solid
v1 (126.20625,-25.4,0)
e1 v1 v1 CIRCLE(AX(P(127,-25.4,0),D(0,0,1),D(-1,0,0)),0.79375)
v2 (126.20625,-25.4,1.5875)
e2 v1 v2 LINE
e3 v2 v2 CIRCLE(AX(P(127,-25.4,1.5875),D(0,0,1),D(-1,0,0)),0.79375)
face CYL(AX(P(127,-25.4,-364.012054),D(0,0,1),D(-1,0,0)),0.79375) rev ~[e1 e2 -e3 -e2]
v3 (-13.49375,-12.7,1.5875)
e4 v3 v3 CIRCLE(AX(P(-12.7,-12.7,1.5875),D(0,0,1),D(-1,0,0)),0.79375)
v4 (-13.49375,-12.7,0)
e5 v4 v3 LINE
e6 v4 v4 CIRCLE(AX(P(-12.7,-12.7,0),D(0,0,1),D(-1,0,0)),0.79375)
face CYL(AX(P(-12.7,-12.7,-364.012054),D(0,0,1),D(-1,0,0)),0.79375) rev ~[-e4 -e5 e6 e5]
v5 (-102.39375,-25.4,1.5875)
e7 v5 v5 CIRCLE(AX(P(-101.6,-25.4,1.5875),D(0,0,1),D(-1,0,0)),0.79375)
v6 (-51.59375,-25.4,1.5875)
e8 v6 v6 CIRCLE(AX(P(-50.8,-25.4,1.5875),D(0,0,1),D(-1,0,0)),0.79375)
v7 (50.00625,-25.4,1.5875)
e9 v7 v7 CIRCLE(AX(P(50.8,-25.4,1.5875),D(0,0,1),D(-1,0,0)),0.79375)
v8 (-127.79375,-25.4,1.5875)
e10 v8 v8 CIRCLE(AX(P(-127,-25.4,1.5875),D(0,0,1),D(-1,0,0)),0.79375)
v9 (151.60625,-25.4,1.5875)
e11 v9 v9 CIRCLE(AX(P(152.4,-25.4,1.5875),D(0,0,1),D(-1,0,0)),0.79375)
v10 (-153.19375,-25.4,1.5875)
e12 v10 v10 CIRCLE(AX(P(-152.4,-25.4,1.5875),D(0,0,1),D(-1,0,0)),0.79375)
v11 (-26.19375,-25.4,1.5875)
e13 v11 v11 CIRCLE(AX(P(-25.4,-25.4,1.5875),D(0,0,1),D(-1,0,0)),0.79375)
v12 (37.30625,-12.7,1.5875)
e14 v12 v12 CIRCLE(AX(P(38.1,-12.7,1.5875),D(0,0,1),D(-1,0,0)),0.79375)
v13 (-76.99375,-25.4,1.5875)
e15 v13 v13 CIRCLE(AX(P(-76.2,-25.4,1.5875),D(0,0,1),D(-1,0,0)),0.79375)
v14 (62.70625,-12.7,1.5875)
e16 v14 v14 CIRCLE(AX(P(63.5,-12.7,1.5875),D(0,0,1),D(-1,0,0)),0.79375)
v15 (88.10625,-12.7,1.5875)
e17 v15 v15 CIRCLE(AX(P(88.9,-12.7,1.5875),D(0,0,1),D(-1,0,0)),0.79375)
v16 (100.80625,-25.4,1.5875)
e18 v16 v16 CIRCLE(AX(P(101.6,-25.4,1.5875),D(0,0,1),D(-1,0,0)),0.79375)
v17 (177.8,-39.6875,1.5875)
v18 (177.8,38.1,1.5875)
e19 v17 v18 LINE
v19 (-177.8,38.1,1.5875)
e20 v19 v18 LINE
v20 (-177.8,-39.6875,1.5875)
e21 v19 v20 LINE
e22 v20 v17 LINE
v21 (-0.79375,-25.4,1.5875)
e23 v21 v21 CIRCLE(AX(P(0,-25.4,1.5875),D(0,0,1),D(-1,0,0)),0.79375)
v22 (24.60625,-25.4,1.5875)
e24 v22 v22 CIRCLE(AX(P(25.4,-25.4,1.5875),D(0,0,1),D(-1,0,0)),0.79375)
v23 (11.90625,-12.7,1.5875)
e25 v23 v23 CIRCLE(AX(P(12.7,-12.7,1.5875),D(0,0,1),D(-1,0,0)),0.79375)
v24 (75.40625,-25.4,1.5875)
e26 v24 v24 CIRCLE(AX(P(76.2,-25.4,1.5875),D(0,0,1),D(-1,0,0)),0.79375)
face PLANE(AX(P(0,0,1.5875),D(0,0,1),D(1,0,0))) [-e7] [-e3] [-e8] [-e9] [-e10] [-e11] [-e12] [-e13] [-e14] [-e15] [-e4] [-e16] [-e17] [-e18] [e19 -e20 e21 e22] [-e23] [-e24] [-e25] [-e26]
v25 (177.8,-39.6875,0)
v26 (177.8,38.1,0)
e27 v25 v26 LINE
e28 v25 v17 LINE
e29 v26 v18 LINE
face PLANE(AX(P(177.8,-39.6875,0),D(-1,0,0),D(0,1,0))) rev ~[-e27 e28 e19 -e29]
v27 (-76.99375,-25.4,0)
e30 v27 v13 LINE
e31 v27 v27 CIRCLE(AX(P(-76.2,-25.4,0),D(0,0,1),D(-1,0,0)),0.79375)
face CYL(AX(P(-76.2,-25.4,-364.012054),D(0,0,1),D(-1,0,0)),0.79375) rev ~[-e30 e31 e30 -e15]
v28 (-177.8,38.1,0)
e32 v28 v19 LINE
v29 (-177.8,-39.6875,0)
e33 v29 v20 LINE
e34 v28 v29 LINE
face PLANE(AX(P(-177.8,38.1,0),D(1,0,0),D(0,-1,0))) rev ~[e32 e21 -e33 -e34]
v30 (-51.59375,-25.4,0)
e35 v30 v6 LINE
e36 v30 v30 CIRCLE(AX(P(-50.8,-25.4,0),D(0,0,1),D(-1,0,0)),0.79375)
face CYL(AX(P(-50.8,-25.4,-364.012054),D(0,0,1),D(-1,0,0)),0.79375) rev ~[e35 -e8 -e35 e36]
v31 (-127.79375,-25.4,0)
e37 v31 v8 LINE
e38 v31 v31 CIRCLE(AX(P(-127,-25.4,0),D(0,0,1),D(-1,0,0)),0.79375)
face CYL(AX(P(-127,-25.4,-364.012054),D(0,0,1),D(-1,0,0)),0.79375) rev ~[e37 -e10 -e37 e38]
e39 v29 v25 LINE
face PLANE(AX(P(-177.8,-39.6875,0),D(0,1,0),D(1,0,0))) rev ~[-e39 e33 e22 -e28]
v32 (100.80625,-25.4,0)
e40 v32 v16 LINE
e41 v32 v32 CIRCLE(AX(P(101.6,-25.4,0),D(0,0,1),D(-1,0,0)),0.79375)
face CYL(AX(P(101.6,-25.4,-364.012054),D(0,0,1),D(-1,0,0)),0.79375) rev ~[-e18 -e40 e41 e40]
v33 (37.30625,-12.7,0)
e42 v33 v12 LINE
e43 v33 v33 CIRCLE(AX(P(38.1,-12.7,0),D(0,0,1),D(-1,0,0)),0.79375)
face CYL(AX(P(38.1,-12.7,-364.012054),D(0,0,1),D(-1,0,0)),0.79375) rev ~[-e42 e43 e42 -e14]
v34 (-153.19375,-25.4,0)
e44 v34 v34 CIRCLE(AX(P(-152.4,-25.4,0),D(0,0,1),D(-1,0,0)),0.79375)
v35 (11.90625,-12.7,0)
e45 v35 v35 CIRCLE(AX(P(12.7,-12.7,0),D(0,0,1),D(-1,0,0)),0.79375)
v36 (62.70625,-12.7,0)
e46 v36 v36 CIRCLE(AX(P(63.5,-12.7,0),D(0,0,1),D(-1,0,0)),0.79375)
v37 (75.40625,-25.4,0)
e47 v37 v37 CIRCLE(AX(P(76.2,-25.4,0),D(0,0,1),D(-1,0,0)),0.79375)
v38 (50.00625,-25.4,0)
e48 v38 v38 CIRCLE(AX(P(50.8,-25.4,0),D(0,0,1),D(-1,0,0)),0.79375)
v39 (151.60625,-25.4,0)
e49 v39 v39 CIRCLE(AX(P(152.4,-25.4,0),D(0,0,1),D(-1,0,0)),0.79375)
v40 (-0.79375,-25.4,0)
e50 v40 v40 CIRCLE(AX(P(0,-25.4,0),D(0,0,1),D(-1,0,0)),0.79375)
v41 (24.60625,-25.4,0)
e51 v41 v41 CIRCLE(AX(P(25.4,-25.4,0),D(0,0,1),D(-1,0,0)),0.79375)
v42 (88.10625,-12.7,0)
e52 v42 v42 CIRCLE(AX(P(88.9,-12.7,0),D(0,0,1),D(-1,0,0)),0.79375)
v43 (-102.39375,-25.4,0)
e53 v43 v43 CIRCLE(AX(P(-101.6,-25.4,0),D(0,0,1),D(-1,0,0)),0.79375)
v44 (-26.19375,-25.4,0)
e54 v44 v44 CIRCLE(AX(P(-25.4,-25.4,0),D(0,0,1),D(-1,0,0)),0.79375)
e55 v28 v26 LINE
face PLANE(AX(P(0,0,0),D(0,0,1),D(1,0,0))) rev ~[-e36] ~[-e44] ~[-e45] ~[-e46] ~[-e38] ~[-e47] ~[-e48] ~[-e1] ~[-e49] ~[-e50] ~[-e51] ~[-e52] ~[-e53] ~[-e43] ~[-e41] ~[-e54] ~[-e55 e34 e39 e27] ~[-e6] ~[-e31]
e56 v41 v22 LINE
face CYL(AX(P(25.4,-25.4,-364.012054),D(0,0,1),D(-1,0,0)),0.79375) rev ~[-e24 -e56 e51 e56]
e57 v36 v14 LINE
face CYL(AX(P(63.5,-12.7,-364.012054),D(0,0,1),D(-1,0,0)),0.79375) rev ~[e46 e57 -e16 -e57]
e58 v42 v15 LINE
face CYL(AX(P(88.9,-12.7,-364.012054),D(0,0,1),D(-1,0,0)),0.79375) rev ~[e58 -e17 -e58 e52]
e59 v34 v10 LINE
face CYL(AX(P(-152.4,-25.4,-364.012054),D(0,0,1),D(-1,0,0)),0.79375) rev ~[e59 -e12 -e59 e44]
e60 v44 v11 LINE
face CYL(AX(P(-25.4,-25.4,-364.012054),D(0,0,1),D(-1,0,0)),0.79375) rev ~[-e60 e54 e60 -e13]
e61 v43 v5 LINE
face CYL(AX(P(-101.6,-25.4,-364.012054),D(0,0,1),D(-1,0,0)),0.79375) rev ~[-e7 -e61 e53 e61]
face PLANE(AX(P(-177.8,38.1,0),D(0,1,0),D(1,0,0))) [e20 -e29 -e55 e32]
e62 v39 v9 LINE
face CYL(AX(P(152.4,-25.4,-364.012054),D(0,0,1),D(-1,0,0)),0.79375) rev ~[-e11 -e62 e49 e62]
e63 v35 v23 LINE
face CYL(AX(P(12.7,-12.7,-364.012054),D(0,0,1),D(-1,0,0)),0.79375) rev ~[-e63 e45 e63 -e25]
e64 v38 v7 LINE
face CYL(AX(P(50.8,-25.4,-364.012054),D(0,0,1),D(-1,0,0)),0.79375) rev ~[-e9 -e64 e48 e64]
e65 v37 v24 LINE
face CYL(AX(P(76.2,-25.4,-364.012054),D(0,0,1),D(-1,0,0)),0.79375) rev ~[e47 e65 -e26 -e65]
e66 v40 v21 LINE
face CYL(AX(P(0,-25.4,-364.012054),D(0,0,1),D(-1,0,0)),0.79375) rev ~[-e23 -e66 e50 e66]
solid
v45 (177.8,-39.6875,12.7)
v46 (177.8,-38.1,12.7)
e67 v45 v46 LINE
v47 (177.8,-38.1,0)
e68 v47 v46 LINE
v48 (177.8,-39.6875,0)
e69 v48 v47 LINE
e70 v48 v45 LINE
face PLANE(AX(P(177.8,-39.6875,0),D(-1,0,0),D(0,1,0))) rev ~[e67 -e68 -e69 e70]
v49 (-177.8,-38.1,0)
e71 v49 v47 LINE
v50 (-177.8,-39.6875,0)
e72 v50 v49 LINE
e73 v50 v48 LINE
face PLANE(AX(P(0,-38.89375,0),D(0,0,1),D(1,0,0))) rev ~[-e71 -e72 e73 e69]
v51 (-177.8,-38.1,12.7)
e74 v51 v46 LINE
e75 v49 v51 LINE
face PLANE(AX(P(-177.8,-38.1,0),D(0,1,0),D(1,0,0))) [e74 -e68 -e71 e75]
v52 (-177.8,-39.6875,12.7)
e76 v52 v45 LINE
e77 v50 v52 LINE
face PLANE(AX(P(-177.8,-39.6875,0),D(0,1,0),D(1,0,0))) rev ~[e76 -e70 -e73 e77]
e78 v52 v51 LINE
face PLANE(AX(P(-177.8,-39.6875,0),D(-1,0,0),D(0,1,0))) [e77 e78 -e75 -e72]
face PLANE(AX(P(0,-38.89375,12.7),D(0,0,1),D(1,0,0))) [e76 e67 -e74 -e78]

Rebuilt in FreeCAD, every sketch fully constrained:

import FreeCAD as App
import Part
import Sketcher
from FreeCAD import Vector
Q = App.Units.Quantity


def add_polygon(sketch, points):
    """Adds a closed chain of lines whose ends are joined by coincident constraints."""
    first, n = sketch.GeometryCount, len(points)
    for a, b in zip(points, points[1:] + points[:1]):
        sketch.addGeometry(Part.LineSegment(App.Vector(*a, 0), App.Vector(*b, 0)), False)
    for i in range(n):
        sketch.addConstraint(Sketcher.Constraint("Coincident", first + i, 2, first + (i + 1) % n, 1))

doc = App.newDocument("Part")
body = doc.addObject("PartDesign::Body", "Body")

# Sketch on XY plane
sketch1 = doc.addObject("Sketcher::SketchObject", "Sketch")
body.addObject(sketch1)
sketch1.AttachmentSupport = (doc.XY_Plane, [""])
sketch1.MapMode = "FlatFace"
add_polygon(sketch1, [(-177.8, -38.1), (-177.8, -39.7), (177.8, -39.7), (177.8, -38.1)])  # lines 0-3
sketch1.addConstraint([
    Sketcher.Constraint("Vertical", 0),
    Sketcher.Constraint("Horizontal", 1),
    Sketcher.Constraint("Vertical", 2),
    Sketcher.Constraint("Horizontal", 3),
    Sketcher.Constraint("DistanceX", 1, 1, 1, 2, Q("14 in")),
    Sketcher.Constraint("DistanceX", 0, 2, -1, 1, Q("7 in")),
    Sketcher.Constraint("DistanceY", 2, 2, -1, 1, Q("1.5 in")),
    Sketcher.Constraint("DistanceY", 0, 2, 0, 1, Q("0.0625 in")),
])
pad1 = doc.addObject("PartDesign::Pad", "Pad")
body.addObject(pad1)
pad1.Profile = sketch1
pad1.Length = Q("0.5 in")
body2 = doc.addObject("PartDesign::Body", "Body001")

# Sketch on XY plane
sketch2 = doc.addObject("Sketcher::SketchObject", "Sketch001")
body2.addObject(sketch2)
sketch2.AttachmentSupport = (doc.getObject("XY_Plane001"), [""])
sketch2.MapMode = "FlatFace"
add_polygon(sketch2, [(-178, 38), (-178, -40), (178, -40), (178, 38)])  # lines 0-3
sketch2.addConstraint([
    Sketcher.Constraint("Vertical", 0),
    Sketcher.Constraint("Horizontal", 1),
    Sketcher.Constraint("Vertical", 2),
    Sketcher.Constraint("Horizontal", 3),
    Sketcher.Constraint("DistanceX", 1, 1, 1, 2, Q("14 in")),
    Sketcher.Constraint("DistanceX", 0, 2, -1, 1, Q("7 in")),
    Sketcher.Constraint("DistanceY", -1, 1, 2, 2, Q("1.5 in")),
    Sketcher.Constraint("DistanceY", 0, 2, 0, 1, Q("3.0625 in")),
])
pad2 = doc.addObject("PartDesign::Pad", "Pad001")
body2.addObject(pad2)
pad2.Profile = sketch2
pad2.Length = Q("0.0625 in")

# Sketch on XY plane
sketch3 = doc.addObject("Sketcher::SketchObject", "Sketch002")
body2.addObject(sketch3)
sketch3.AttachmentSupport = (doc.getObject("XY_Plane001"), [""])
sketch3.MapMode = "FlatFace"
sketch3.addGeometry([
    Part.Circle(Vector(0, -25.4, 0), Vector(0, 0, 1), 0.8),  # 0
    Part.Circle(Vector(-25.4, -25.4, 0), Vector(0, 0, 1), 0.8),  # 1
    Part.Circle(Vector(-50.8, -25.4, 0), Vector(0, 0, 1), 0.8),  # 2
    Part.Circle(Vector(-76.2, -25.4, 0), Vector(0, 0, 1), 0.8),  # 3
    Part.Circle(Vector(50.8, -25.4, 0), Vector(0, 0, 1), 0.8),  # 4
    Part.Circle(Vector(25.4, -25.4, 0), Vector(0, 0, 1), 0.8),  # 5
    Part.Circle(Vector(76.2, -25.4, 0), Vector(0, 0, 1), 0.8),  # 6
    Part.Circle(Vector(101.6, -25.4, 0), Vector(0, 0, 1), 0.8),  # 7
    Part.Circle(Vector(127, -25.4, 0), Vector(0, 0, 1), 0.8),  # 8
    Part.Circle(Vector(152.4, -25.4, 0), Vector(0, 0, 1), 0.8),  # 9
    Part.Circle(Vector(-101.6, -25.4, 0), Vector(0, 0, 1), 0.8),  # 10
    Part.Circle(Vector(-127, -25.4, 0), Vector(0, 0, 1), 0.8),  # 11
    Part.Circle(Vector(-152.4, -25.4, 0), Vector(0, 0, 1), 0.8),  # 12
    Part.Circle(Vector(-12.7, -12.7, 0), Vector(0, 0, 1), 0.8),  # 13
    Part.Circle(Vector(12.7, -12.7, 0), Vector(0, 0, 1), 0.8),  # 14
    Part.Circle(Vector(38.1, -12.7, 0), Vector(0, 0, 1), 0.8),  # 15
    Part.Circle(Vector(63.5, -12.7, 0), Vector(0, 0, 1), 0.8),  # 16
    Part.Circle(Vector(88.9, -12.7, 0), Vector(0, 0, 1), 0.8),  # 17
], False)
sketch3.addConstraint([
    Sketcher.Constraint("Equal", 0, 1),
    Sketcher.Constraint("Equal", 1, 2),
    Sketcher.Constraint("Equal", 2, 3),
    Sketcher.Constraint("Equal", 3, 4),
    Sketcher.Constraint("Equal", 4, 5),
    Sketcher.Constraint("Equal", 5, 6),
    Sketcher.Constraint("Equal", 6, 7),
    Sketcher.Constraint("Equal", 7, 8),
    Sketcher.Constraint("Equal", 8, 9),
    Sketcher.Constraint("Equal", 9, 10),
    Sketcher.Constraint("Equal", 10, 11),
    Sketcher.Constraint("Equal", 11, 12),
    Sketcher.Constraint("Equal", 12, 13),
    Sketcher.Constraint("Equal", 13, 14),
    Sketcher.Constraint("Equal", 14, 15),
    Sketcher.Constraint("Equal", 15, 16),
    Sketcher.Constraint("Equal", 16, 17),
    Sketcher.Constraint("Symmetric", 2, 3, 4, 3, -2),
    Sketcher.Constraint("Symmetric", 1, 3, 5, 3, -2),
    Sketcher.Constraint("Symmetric", 3, 3, 6, 3, -2),
    Sketcher.Constraint("Symmetric", 7, 3, 10, 3, -2),
    Sketcher.Constraint("Symmetric", 8, 3, 11, 3, -2),
    Sketcher.Constraint("Symmetric", 9, 3, 12, 3, -2),
    Sketcher.Constraint("Symmetric", 13, 3, 14, 3, -2),
    Sketcher.Constraint("PointOnObject", 0, 3, -2),
    Sketcher.Constraint("Horizontal", 0, 3, 1, 3),
    Sketcher.Constraint("Horizontal", 1, 3, 2, 3),
    Sketcher.Constraint("Horizontal", 2, 3, 3, 3),
    Sketcher.Constraint("Horizontal", 6, 3, 7, 3),
    Sketcher.Constraint("Horizontal", 7, 3, 8, 3),
    Sketcher.Constraint("Horizontal", 8, 3, 9, 3),
    Sketcher.Constraint("Horizontal", 14, 3, 15, 3),
    Sketcher.Constraint("Horizontal", 15, 3, 16, 3),
    Sketcher.Constraint("Horizontal", 16, 3, 17, 3),
    Sketcher.Constraint("Diameter", 0, Q("0.0625 in")),
    Sketcher.Constraint("DistanceY", 0, 3, -1, 1, Q("1 in")),
    Sketcher.Constraint("DistanceX", 1, 3, -1, 1, Q("1 in")),
    Sketcher.Constraint("DistanceX", 2, 3, -1, 1, Q("2 in")),
    Sketcher.Constraint("DistanceX", 3, 3, -1, 1, Q("3 in")),
    Sketcher.Constraint("DistanceX", -1, 1, 7, 3, Q("4 in")),
    Sketcher.Constraint("DistanceX", -1, 1, 8, 3, Q("5 in")),
    Sketcher.Constraint("DistanceX", -1, 1, 9, 3, Q("6 in")),
    Sketcher.Constraint("DistanceX", 13, 3, 14, 3, Q("1 in")),
    Sketcher.Constraint("DistanceX", 14, 3, 15, 3, Q("1 in")),
    Sketcher.Constraint("DistanceX", 15, 3, 16, 3, Q("1 in")),
    Sketcher.Constraint("DistanceX", 16, 3, 17, 3, Q("1 in")),
    Sketcher.Constraint("DistanceY", 13, 3, -1, 1, Q("0.5 in")),
])
doc.recompute()
hole = doc.addObject("PartDesign::Hole", "Hole")
body2.addObject(hole)
hole.Profile = sketch3
hole.ThreadType = "None"
hole.Diameter = Q("0.0625 in")
hole.DepthType = "ThroughAll"
hole.Reversed = True

doc.recompute()
